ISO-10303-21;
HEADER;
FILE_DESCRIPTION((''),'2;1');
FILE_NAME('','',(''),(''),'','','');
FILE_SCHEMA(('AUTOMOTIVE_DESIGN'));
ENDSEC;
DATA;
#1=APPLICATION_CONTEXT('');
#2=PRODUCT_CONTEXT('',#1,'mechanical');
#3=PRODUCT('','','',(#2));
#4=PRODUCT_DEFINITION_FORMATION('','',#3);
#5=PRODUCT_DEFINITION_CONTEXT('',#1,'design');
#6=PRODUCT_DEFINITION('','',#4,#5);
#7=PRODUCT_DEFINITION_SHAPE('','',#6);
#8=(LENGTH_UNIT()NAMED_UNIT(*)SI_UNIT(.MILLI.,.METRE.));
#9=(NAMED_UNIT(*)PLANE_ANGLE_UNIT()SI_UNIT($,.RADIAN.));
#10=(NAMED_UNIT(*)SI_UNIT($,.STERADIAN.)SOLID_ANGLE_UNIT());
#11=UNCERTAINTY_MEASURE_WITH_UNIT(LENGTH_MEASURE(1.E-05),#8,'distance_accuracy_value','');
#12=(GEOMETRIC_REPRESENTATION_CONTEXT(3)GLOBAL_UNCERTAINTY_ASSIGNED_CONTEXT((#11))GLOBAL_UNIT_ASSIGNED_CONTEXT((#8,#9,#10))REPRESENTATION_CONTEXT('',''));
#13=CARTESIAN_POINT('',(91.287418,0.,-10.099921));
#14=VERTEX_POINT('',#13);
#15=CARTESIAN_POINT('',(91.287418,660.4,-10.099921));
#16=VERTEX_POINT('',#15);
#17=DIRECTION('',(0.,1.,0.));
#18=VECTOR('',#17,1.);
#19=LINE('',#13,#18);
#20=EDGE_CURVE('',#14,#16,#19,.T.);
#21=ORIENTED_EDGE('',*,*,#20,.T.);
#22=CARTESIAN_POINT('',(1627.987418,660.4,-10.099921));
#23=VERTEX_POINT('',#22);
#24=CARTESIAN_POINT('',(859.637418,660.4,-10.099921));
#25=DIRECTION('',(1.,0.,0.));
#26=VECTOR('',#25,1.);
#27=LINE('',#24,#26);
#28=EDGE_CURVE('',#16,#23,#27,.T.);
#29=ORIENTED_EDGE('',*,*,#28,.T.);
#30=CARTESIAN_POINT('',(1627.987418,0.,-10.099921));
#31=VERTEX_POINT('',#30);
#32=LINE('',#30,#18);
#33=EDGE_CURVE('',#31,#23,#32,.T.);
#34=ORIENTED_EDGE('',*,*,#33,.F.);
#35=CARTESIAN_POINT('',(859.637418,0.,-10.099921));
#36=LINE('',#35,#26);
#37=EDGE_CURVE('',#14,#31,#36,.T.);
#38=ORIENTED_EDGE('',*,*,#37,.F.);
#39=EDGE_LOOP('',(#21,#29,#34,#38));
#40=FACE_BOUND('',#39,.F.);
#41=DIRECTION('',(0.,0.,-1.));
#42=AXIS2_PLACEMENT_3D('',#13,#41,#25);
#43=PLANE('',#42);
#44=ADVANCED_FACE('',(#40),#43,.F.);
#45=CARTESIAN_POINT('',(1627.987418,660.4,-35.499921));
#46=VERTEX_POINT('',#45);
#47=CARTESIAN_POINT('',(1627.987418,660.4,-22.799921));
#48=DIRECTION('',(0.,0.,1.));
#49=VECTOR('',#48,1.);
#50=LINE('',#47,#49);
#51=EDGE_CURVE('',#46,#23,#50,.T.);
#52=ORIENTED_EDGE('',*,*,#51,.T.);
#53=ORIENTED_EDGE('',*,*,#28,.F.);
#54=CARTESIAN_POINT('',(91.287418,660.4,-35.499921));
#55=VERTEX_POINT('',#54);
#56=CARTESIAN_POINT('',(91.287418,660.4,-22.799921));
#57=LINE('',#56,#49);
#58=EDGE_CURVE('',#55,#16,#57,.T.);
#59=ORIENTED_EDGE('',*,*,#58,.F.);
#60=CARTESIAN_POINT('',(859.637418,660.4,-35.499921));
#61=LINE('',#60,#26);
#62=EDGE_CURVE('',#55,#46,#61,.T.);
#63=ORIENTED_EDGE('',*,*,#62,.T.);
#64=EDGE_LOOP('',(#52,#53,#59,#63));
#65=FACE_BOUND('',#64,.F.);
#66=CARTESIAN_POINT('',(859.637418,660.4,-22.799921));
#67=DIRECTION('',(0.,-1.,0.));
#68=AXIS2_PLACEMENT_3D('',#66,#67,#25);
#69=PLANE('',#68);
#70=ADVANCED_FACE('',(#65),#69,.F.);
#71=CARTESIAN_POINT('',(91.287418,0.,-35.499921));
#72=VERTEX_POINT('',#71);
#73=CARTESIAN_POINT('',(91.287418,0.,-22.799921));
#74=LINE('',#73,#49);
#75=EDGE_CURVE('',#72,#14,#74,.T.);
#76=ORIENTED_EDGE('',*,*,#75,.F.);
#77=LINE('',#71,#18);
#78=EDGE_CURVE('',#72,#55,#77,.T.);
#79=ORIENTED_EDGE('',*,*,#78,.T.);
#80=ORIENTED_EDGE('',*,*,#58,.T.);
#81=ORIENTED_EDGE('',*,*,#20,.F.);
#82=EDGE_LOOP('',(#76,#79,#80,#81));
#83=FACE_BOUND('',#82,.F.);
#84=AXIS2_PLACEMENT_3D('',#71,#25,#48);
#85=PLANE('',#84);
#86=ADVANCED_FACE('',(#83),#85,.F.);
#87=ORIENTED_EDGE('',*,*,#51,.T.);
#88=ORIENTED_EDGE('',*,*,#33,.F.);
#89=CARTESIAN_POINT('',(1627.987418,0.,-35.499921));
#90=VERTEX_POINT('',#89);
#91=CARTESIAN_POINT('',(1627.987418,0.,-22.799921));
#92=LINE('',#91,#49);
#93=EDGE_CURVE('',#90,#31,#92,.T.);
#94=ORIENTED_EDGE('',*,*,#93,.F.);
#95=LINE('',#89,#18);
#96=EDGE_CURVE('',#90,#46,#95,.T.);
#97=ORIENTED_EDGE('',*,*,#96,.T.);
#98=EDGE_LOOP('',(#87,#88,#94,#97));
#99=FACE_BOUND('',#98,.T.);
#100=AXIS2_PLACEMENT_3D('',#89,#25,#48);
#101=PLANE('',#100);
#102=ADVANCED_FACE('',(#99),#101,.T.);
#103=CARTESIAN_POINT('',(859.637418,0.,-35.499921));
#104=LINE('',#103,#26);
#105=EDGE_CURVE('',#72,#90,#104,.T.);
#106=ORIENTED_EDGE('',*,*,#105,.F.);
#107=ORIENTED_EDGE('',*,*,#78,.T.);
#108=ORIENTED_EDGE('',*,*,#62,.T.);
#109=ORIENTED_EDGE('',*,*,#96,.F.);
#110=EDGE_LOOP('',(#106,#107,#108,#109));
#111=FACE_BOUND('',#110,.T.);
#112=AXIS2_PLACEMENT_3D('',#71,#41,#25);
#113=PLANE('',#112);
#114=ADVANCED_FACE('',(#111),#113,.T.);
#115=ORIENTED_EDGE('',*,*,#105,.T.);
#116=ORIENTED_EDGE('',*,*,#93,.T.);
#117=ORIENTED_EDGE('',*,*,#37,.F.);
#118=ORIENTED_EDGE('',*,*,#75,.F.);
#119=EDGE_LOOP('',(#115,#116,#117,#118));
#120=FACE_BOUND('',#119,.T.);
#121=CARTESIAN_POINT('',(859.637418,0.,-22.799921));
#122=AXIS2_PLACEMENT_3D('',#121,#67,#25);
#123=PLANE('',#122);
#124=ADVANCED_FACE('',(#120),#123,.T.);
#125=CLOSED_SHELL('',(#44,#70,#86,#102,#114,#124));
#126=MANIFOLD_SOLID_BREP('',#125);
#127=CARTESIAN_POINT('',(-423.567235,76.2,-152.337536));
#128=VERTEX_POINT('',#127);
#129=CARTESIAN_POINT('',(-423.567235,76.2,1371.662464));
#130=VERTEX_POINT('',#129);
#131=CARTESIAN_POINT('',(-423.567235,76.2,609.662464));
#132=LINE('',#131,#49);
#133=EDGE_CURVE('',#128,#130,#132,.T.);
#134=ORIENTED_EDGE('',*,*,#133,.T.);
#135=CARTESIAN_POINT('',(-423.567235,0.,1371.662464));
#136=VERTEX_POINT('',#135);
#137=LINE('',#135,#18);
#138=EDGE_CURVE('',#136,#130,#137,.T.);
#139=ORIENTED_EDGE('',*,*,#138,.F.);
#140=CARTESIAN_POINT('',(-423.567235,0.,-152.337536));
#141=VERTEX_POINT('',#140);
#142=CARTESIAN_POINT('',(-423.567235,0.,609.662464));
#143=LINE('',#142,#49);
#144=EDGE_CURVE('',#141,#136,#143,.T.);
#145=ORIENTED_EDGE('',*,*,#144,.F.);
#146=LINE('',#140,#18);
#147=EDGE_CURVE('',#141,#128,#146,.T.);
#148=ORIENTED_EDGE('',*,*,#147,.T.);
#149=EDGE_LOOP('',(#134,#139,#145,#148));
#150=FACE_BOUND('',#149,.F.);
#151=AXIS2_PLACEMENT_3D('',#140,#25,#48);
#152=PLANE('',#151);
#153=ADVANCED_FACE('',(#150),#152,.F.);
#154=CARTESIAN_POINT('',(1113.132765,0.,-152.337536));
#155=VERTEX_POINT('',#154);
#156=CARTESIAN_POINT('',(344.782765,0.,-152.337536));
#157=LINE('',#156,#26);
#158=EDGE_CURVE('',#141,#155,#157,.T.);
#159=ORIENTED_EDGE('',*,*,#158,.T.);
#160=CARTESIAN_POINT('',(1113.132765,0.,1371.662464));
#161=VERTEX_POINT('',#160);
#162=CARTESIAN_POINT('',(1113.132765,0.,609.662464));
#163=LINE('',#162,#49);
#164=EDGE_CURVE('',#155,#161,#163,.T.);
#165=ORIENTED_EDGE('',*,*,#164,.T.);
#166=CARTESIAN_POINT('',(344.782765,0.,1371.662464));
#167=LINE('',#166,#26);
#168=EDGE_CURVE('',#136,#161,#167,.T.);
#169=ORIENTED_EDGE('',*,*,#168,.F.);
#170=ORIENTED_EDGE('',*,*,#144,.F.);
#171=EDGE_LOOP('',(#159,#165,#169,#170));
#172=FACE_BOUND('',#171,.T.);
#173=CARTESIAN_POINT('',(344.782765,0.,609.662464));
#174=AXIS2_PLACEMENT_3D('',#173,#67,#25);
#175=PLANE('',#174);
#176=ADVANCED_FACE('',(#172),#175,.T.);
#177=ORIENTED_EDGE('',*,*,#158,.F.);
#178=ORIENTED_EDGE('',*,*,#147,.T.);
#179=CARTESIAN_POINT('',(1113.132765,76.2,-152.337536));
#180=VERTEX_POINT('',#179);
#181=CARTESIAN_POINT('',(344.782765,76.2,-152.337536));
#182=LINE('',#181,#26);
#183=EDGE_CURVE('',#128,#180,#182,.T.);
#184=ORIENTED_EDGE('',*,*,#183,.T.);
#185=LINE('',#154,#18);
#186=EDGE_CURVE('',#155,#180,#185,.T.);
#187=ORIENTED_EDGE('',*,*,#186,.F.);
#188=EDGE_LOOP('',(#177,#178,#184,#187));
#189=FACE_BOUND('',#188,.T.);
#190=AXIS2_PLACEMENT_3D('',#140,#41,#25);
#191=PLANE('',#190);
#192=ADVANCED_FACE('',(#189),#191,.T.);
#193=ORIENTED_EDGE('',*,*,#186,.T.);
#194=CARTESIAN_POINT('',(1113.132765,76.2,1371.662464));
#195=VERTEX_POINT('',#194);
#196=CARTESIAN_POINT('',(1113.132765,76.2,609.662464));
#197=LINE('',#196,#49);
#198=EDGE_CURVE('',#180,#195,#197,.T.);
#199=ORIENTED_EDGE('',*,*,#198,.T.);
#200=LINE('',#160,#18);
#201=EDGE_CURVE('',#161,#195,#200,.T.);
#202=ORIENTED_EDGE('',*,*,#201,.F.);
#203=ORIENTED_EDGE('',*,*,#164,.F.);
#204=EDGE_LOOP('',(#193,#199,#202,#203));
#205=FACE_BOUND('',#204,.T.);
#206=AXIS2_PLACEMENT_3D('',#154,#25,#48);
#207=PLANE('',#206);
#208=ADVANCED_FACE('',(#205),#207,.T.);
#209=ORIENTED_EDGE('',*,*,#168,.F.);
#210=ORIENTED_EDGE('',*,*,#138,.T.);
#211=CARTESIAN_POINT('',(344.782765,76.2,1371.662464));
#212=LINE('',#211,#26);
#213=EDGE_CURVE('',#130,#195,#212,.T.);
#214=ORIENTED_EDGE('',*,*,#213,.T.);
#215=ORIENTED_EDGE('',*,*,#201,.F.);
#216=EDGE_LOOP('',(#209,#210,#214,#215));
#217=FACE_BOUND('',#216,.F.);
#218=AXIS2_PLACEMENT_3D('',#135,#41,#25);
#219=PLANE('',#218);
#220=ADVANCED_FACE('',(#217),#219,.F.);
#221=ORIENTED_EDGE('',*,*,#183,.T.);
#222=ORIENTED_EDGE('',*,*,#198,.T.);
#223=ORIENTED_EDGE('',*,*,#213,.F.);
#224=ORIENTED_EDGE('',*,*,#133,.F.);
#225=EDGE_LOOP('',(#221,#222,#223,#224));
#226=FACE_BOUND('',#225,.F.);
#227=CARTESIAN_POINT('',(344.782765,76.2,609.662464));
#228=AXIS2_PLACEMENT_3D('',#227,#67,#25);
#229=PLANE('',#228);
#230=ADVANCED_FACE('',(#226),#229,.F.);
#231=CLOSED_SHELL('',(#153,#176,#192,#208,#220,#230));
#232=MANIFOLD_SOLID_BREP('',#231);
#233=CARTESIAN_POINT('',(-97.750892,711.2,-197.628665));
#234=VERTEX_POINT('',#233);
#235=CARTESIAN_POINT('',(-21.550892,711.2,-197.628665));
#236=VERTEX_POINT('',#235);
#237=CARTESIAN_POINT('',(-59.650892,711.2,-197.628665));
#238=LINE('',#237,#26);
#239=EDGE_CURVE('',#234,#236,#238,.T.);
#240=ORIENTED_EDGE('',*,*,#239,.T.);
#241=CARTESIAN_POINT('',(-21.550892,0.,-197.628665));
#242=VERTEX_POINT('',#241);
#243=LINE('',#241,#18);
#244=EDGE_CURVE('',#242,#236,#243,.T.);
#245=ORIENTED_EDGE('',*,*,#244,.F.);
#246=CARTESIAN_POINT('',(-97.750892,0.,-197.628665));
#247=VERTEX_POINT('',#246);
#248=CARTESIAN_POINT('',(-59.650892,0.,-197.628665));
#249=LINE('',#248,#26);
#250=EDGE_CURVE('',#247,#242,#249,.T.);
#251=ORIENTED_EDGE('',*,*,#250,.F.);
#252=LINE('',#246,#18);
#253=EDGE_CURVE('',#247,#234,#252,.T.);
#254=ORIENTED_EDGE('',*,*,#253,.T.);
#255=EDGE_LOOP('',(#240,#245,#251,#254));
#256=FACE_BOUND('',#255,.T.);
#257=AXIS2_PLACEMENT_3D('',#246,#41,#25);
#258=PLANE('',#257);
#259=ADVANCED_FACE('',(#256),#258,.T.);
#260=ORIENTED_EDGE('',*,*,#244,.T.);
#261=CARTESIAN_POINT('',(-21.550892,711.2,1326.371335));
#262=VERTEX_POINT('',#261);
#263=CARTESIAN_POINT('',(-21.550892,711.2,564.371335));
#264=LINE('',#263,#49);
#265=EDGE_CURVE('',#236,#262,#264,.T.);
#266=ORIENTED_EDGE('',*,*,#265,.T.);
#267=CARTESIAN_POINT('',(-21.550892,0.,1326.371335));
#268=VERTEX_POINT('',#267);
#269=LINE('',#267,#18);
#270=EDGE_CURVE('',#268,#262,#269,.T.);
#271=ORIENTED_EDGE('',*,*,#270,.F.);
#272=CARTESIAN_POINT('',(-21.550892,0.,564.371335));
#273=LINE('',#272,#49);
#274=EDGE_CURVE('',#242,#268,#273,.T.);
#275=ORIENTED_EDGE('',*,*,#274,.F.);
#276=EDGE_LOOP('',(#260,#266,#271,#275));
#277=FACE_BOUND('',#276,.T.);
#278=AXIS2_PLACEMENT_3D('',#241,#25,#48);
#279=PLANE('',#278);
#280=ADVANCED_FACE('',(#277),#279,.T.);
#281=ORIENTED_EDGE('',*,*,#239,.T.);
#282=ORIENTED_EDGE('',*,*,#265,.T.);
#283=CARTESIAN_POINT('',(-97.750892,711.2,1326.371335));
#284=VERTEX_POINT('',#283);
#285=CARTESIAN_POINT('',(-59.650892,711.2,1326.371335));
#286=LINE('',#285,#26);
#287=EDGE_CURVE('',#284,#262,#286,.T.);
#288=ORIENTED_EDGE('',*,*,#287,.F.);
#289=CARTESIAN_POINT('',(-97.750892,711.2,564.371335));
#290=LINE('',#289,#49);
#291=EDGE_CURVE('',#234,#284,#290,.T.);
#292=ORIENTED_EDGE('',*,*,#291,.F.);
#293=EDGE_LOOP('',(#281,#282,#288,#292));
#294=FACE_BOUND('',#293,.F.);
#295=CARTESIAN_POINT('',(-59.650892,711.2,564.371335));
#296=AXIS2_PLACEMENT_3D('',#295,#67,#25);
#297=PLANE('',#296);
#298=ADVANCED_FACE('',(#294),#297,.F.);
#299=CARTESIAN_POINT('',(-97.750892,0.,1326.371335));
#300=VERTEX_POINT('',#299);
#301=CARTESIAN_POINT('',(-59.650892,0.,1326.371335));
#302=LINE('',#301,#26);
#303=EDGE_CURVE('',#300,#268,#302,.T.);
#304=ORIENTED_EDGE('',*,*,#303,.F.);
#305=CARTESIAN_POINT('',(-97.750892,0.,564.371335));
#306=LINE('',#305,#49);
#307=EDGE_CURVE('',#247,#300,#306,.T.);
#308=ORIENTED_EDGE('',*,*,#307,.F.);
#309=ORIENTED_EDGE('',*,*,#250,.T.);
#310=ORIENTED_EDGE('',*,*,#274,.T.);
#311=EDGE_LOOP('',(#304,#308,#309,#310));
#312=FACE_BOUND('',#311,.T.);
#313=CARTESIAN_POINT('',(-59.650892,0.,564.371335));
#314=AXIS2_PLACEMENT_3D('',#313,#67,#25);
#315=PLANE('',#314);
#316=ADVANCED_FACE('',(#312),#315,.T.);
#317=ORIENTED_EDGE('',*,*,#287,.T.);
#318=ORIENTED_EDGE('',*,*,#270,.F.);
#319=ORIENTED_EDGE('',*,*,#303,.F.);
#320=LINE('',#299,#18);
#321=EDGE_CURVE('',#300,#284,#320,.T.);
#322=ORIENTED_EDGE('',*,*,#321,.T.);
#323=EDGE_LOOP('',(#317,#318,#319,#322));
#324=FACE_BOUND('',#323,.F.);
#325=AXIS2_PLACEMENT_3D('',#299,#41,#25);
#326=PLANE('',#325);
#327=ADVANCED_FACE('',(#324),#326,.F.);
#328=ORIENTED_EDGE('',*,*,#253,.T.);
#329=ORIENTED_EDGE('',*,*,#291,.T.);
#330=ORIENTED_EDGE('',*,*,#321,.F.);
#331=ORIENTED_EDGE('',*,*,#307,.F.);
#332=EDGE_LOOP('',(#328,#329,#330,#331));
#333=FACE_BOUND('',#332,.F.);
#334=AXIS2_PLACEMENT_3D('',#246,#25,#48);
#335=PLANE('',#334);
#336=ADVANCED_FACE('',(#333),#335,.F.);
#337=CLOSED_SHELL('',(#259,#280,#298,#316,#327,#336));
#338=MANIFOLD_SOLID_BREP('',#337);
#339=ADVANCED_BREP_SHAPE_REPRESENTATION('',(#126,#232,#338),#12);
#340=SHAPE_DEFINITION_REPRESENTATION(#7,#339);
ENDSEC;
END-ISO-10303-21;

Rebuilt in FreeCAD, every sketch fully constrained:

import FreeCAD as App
import Part
import Sketcher
Q = App.Units.Quantity


def add_polygon(sketch, points):
    """Adds a closed chain of lines whose ends are joined by coincident constraints."""
    first, n = sketch.GeometryCount, len(points)
    for a, b in zip(points, points[1:] + points[:1]):
        sketch.addGeometry(Part.LineSegment(App.Vector(*a, 0), App.Vector(*b, 0)), False)
    for i in range(n):
        sketch.addConstraint(Sketcher.Constraint("Coincident", first + i, 2, first + (i + 1) % n, 1))

doc = App.newDocument("Part")
params = doc.addObject("Spreadsheet::Sheet", "Params")
for row, (alias, value) in enumerate([
    ("sketch1_width", "3 in"),
    ("sketch1_height", "60 in"),
    ("pad1_length", "28 in"),
    ("sketch2_height", "1 in"),
    ("sketch2_width", "60.5 in"),
    ("pad2_length", "26 in"),
    ("sketch3_height", "60 in"),
    ("sketch3_width", "60.5 in"),
    ("pad3_length", "3 in"),
], start=1):
    params.set(f"A{row}", alias)
    params.set(f"B{row}", "=" + value)
    params.setAlias(f"B{row}", alias)

body = doc.addObject("PartDesign::Body", "Body")

# Sketch on XZ plane
sketch1 = body.newObject("Sketcher::SketchObject", "Sketch")
sketch1.AttachmentSupport = (doc.getObject("XZ_Plane"), [""])
sketch1.MapMode = "FlatFace"
add_polygon(sketch1, [(-98, 1326), (-98, -198), (-22, -198), (-22, 1326)])  # lines 0-3
sketch1.addConstraint([
    Sketcher.Constraint("Vertical", 0),
    Sketcher.Constraint("Horizontal", 1),
    Sketcher.Constraint("Vertical", 2),
    Sketcher.Constraint("Horizontal", 3),
    Sketcher.Constraint("DistanceX", 1, 1, 1, 2, Q("3 in")),
    Sketcher.Constraint("DistanceY", 0, 2, 0, 1, Q("60 in")),
    Sketcher.Constraint("DistanceX", 0, 2, -1, 1, Q("97.750892 mm")),
    Sketcher.Constraint("DistanceY", 0, 2, -1, 1, Q("197.628665 mm")),
])
sketch1.setExpression("Constraints[8]", "Params.sketch1_width")
sketch1.setExpression("Constraints[9]", "Params.sketch1_height")
pad1 = body.newObject("PartDesign::Pad", "Pad")
pad1.Profile = sketch1
pad1.setExpression("Length", "Params.pad1_length")
pad1.Reversed = True
body2 = doc.addObject("PartDesign::Body", "Body001")

# Sketch on XZ plane
sketch2 = body2.newObject("Sketcher::SketchObject", "Sketch001")
sketch2.AttachmentSupport = (doc.getObject("XZ_Plane001"), [""])
sketch2.MapMode = "FlatFace"
add_polygon(sketch2, [(91, -10), (91, -35), (1628, -35), (1628, -10)])  # lines 0-3
sketch2.addConstraint([
    Sketcher.Constraint("Vertical", 0),
    Sketcher.Constraint("Horizontal", 1),
    Sketcher.Constraint("Vertical", 2),
    Sketcher.Constraint("Horizontal", 3),
    Sketcher.Constraint("DistanceY", 0, 2, 0, 1, Q("1 in")),
    Sketcher.Constraint("DistanceX", 1, 1, 1, 2, Q("60.5 in")),
    Sketcher.Constraint("DistanceX", -1, 1, 0, 2, Q("91.287418 mm")),
    Sketcher.Constraint("DistanceY", 0, 2, -1, 1, Q("35.499921 mm")),
])
sketch2.setExpression("Constraints[8]", "Params.sketch2_height")
sketch2.setExpression("Constraints[9]", "Params.sketch2_width")
pad2 = body2.newObject("PartDesign::Pad", "Pad001")
pad2.Profile = sketch2
pad2.setExpression("Length", "Params.pad2_length")
pad2.Reversed = True
body3 = doc.addObject("PartDesign::Body", "Body002")

# Sketch on XZ plane
sketch3 = body3.newObject("Sketcher::SketchObject", "Sketch002")
sketch3.AttachmentSupport = (doc.getObject("XZ_Plane002"), [""])
sketch3.MapMode = "FlatFace"
add_polygon(sketch3, [(-424, 1372), (-424, -152), (1113, -152), (1113, 1372)])  # lines 0-3
sketch3.addConstraint([
    Sketcher.Constraint("Vertical", 0),
    Sketcher.Constraint("Horizontal", 1),
    Sketcher.Constraint("Vertical", 2),
    Sketcher.Constraint("Horizontal", 3),
    Sketcher.Constraint("DistanceY", 0, 2, 0, 1, Q("60 in")),
    Sketcher.Constraint("DistanceX", 1, 1, 1, 2, Q("60.5 in")),
    Sketcher.Constraint("DistanceX", 0, 2, -1, 1, Q("423.567235 mm")),
    Sketcher.Constraint("DistanceY", 0, 2, -1, 1, Q("152.337536 mm")),
])
sketch3.setExpression("Constraints[8]", "Params.sketch3_height")
sketch3.setExpression("Constraints[9]", "Params.sketch3_width")
pad3 = body3.newObject("PartDesign::Pad", "Pad002")
pad3.Profile = sketch3
pad3.setExpression("Length", "Params.pad3_length")
pad3.Reversed = True

doc.recompute()
